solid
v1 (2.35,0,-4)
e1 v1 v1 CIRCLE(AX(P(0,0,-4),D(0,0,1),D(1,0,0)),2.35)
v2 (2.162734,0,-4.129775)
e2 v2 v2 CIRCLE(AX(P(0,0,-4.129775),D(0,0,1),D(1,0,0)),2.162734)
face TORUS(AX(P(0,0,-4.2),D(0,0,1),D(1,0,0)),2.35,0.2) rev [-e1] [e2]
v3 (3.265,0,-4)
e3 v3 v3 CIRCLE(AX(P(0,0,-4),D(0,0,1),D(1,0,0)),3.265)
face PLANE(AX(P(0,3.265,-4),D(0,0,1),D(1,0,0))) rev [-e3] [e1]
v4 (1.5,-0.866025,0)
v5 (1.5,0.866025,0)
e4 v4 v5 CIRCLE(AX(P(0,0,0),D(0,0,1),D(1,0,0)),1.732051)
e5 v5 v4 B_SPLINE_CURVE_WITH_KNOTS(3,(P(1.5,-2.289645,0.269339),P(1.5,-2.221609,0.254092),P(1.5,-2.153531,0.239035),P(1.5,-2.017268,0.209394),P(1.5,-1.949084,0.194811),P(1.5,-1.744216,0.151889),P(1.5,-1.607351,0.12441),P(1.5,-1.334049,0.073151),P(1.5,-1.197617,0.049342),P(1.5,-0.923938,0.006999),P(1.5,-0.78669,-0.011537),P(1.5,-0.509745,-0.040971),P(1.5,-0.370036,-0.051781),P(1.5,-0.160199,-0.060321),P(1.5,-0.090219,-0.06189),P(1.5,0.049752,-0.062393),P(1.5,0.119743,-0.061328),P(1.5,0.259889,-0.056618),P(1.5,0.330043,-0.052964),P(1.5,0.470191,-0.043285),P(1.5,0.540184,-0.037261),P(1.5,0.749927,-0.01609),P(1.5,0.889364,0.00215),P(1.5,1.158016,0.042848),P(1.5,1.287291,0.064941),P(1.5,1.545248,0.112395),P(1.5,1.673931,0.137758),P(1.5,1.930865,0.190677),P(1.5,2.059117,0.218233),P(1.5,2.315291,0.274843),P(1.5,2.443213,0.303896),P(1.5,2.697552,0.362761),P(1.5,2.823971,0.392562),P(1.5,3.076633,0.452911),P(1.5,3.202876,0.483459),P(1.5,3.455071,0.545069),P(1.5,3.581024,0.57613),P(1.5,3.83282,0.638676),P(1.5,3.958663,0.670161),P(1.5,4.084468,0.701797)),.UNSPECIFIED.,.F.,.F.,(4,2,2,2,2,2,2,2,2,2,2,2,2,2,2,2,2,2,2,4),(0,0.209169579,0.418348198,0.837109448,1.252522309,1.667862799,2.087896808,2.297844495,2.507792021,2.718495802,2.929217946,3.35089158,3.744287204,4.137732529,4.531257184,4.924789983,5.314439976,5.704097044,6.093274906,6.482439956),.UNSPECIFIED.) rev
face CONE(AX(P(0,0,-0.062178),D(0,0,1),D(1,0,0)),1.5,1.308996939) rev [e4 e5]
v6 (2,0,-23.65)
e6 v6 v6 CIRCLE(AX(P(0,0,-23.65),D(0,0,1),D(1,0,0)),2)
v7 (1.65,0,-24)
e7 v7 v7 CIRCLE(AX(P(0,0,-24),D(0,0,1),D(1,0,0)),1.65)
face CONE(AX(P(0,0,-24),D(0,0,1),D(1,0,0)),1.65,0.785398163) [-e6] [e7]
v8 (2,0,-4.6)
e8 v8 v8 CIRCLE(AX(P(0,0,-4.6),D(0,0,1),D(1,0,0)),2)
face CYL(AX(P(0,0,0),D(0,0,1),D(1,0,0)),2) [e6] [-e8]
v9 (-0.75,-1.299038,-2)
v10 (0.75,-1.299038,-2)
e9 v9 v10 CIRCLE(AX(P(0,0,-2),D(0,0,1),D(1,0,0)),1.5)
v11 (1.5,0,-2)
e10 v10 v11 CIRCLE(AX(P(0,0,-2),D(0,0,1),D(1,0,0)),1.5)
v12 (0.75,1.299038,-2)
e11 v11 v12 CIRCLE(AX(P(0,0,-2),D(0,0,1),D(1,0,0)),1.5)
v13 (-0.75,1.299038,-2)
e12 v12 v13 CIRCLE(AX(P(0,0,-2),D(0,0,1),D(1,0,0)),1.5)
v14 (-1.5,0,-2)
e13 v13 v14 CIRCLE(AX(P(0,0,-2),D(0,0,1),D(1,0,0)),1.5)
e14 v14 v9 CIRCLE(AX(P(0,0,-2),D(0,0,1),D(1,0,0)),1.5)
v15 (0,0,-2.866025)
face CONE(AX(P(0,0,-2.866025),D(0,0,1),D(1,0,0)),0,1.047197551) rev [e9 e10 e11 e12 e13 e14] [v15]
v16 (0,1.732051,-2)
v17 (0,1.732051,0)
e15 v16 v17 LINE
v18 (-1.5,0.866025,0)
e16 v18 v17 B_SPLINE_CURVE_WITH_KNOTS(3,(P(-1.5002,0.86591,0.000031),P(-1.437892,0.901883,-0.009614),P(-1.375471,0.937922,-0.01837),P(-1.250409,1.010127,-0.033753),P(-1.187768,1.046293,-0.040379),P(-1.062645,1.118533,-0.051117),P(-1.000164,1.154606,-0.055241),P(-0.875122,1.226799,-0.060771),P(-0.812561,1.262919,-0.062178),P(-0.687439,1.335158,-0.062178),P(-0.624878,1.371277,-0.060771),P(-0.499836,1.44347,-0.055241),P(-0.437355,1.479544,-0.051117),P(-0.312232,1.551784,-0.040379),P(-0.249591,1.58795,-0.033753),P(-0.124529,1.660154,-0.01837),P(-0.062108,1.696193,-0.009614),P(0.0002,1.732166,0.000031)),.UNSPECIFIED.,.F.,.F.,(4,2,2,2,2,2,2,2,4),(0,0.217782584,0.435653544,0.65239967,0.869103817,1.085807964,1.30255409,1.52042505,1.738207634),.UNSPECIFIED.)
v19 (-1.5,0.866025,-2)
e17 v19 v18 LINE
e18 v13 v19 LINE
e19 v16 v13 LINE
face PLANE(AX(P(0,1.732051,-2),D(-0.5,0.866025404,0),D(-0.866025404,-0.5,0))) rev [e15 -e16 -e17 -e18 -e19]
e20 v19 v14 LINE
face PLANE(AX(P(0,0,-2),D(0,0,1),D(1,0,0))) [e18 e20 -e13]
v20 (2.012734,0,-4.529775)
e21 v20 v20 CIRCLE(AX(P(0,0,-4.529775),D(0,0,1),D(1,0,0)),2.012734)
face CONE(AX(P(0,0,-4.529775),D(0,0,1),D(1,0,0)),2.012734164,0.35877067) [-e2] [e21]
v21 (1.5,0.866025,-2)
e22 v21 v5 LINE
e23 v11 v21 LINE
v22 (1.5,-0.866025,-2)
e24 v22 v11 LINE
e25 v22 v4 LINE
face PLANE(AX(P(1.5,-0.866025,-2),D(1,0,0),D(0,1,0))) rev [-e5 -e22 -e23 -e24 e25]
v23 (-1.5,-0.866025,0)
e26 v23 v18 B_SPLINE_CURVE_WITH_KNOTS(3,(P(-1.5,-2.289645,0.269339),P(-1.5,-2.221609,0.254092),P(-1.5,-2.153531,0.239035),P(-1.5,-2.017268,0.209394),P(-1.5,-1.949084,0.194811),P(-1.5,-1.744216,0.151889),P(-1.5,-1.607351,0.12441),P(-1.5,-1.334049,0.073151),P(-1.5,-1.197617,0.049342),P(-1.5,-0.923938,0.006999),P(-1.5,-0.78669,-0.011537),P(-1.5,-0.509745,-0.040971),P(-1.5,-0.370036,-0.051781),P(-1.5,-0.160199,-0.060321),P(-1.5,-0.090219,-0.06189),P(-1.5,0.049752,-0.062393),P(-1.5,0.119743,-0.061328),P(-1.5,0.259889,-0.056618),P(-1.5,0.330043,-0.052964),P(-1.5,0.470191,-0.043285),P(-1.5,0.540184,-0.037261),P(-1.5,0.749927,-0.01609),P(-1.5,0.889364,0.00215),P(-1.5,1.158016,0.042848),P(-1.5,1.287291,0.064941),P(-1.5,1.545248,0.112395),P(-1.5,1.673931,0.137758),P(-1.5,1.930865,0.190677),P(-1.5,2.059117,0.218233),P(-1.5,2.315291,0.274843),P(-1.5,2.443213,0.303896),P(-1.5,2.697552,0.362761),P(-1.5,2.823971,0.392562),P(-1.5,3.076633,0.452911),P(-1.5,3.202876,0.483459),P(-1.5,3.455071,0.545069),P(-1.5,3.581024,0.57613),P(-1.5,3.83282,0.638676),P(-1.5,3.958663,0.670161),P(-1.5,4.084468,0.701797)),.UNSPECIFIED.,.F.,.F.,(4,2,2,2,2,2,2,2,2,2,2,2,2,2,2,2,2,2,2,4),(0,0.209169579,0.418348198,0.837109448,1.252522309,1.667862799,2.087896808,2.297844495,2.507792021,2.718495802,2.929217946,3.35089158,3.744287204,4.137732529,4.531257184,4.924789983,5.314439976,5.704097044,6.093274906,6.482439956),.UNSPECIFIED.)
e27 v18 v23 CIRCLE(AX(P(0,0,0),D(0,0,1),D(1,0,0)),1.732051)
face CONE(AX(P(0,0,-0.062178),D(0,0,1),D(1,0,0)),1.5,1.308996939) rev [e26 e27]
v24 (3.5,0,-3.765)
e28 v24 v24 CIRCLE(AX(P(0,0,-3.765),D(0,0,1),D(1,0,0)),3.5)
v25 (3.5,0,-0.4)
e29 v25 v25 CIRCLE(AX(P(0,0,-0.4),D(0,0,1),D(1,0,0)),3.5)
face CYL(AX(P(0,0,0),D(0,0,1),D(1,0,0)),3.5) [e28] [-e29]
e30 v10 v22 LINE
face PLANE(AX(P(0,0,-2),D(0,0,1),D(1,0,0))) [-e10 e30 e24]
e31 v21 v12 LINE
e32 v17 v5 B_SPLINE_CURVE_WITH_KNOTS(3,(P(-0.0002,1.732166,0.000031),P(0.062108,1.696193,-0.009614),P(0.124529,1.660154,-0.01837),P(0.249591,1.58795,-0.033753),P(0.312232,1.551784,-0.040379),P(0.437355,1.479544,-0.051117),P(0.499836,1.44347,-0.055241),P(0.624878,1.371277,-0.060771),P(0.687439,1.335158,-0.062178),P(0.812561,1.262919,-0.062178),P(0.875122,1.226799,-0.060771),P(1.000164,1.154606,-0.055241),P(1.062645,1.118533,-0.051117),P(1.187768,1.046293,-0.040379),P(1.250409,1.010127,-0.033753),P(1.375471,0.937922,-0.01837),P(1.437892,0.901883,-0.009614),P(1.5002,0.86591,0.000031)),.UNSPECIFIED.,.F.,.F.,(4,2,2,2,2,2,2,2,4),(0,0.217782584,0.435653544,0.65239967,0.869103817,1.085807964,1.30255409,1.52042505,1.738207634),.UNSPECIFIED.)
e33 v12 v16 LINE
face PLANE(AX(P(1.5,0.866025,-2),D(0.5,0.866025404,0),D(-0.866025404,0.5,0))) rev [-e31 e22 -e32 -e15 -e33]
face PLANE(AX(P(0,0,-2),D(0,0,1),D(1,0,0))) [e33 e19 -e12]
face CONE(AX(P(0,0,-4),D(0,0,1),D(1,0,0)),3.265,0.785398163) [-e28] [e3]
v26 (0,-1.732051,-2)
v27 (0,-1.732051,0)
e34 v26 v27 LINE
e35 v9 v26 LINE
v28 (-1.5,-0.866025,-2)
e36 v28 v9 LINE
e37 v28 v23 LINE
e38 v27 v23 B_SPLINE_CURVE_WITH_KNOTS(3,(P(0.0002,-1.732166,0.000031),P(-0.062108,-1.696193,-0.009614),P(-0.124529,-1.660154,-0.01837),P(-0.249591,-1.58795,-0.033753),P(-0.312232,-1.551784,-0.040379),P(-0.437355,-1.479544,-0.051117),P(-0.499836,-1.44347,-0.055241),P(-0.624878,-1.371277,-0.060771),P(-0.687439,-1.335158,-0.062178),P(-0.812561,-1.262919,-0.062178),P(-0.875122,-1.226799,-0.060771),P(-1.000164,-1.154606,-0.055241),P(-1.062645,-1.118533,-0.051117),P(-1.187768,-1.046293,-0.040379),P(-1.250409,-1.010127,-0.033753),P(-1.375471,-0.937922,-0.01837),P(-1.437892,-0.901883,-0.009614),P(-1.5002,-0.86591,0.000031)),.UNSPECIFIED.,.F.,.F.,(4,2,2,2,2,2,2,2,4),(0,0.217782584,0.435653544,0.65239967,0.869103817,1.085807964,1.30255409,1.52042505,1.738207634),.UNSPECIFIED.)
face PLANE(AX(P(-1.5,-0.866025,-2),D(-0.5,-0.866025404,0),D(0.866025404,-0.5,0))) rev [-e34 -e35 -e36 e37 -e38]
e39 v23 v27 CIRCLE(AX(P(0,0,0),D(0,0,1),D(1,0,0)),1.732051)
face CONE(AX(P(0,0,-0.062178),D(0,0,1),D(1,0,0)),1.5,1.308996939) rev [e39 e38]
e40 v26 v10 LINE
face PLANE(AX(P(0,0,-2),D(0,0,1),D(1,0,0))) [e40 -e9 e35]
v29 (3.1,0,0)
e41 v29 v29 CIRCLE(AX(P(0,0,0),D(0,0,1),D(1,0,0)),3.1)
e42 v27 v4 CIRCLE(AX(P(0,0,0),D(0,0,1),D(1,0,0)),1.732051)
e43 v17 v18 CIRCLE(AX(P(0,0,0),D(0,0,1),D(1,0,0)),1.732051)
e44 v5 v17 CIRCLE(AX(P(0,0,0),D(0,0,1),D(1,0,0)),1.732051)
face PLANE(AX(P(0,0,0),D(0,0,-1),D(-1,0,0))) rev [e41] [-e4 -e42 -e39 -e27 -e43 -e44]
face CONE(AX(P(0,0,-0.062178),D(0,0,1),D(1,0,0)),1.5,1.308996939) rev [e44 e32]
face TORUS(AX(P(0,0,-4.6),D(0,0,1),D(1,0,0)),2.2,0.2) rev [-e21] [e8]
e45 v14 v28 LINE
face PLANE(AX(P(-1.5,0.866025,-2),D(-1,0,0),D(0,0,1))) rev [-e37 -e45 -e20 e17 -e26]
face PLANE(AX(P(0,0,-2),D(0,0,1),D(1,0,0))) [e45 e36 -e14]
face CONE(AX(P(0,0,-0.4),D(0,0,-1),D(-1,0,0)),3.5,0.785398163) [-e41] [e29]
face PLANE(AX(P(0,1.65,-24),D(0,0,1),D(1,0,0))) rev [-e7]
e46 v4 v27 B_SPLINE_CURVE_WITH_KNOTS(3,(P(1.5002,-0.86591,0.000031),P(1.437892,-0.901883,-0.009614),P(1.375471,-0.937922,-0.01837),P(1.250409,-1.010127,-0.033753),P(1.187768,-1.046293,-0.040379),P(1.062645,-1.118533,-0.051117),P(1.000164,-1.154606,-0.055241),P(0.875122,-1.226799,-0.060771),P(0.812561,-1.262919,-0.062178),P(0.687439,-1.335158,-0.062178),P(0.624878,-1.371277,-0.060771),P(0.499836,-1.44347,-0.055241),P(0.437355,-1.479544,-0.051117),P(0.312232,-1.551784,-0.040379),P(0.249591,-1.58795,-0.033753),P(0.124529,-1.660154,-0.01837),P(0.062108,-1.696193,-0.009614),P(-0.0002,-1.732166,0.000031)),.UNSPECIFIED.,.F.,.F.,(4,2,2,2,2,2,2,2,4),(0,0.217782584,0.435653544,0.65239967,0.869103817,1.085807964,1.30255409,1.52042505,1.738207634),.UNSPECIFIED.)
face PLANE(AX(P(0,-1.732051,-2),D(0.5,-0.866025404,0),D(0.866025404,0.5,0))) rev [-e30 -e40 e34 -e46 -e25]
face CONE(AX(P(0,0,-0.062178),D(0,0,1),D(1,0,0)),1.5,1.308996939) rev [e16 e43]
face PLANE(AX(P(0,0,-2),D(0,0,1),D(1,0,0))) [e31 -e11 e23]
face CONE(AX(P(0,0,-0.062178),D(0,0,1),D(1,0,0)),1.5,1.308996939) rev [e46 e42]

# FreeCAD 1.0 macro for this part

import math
import FreeCAD as App
import Part
import Sketcher
Q = App.Units.Quantity


def add_polygon(sketch, points):
    """Adds a closed chain of lines whose ends are joined by coincident constraints."""
    first, n = sketch.GeometryCount, len(points)
    for a, b in zip(points, points[1:] + points[:1]):
        sketch.addGeometry(Part.LineSegment(App.Vector(*a, 0), App.Vector(*b, 0)), False)
    for i in range(n):
        sketch.addConstraint(Sketcher.Constraint("Coincident", first + i, 2, first + (i + 1) % n, 1))

doc = App.newDocument("Part")
params = doc.addObject("Spreadsheet::Sheet", "Params")
for row, (alias, value) in enumerate([
    ("sketch1_radius", "0.2 mm"),
    ("sketch1_height", "24 mm"),
    ("sketch1_width", "3.1 mm"),
    ("sketch1_width2", "1.65 mm"),
    ("sketch1_height2", "19.05 mm"),
    ("revolution_angle", "360 deg"),
    ("pocket1_length", "2 mm"),
    ("sketch3_width", "1.5 mm"),
    ("groove_angle", "360 deg"),
    ("groove2_angle", "360 deg"),
], start=1):
    params.set(f"A{row}", alias)
    params.set(f"B{row}", "=" + value)
    params.setAlias(f"B{row}", alias)

body = doc.addObject("PartDesign::Body", "Body")

sketch1 = body.newObject("Sketcher::SketchObject", "Sketch")
sketch1.AttachmentSupport = (doc.getObject("YZ_Plane"), [""])
sketch1.MapMode = "FlatFace"
sketch1.addGeometry([
    Part.LineSegment(App.Vector(3.1, 0, 0), App.Vector(0, 0, 0)),
    Part.LineSegment(App.Vector(0, 0, 0), App.Vector(0, -24, 0)),
    Part.LineSegment(App.Vector(0, -24, 0), App.Vector(1.65, -24, 0)),
    Part.LineSegment(App.Vector(1.65, -24, 0), App.Vector(2, -23.65, 0)),
    Part.LineSegment(App.Vector(2, -23.65, 0), App.Vector(2, -4.6, 0)),
    Part.ArcOfCircle(Part.Circle(App.Vector(2.2, -4.6, 0), App.Vector(0, 0, 1), 0.2), math.radians(159), math.radians(180)),
    Part.LineSegment(App.Vector(2.01, -4.53, 0), App.Vector(2.16, -4.13, 0)),
    Part.ArcOfCircle(Part.Circle(App.Vector(2.35, -4.2, 0), App.Vector(0, 0, 1), 0.2), math.radians(90), math.radians(159)),
    Part.LineSegment(App.Vector(2.35, -4, 0), App.Vector(3.27, -4, 0)),
    Part.LineSegment(App.Vector(3.27, -4, 0), App.Vector(3.5, -3.77, 0)),
    Part.LineSegment(App.Vector(3.5, -3.77, 0), App.Vector(3.5, -0.4, 0)),
    Part.LineSegment(App.Vector(3.5, -0.4, 0), App.Vector(3.1, 0, 0)),
], False)
sketch1.addConstraint([
    Sketcher.Constraint("Coincident", 0, 2, 1, 1),
    Sketcher.Constraint("Coincident", 1, 2, 2, 1),
    Sketcher.Constraint("Coincident", 2, 2, 3, 1),
    Sketcher.Constraint("Coincident", 3, 2, 4, 1),
    Sketcher.Constraint("Tangent", 4, 2, 5, 2),
    Sketcher.Constraint("Tangent", 5, 1, 6, 1),
    Sketcher.Constraint("Tangent", 6, 2, 7, 2),
    Sketcher.Constraint("Tangent", 7, 1, 8, 1),
    Sketcher.Constraint("Coincident", 8, 2, 9, 1),
    Sketcher.Constraint("Coincident", 9, 2, 10, 1),
    Sketcher.Constraint("Coincident", 10, 2, 11, 1),
    Sketcher.Constraint("Coincident", 11, 2, 0, 1),
    Sketcher.Constraint("Horizontal", 0),
    Sketcher.Constraint("Vertical", 1),
    Sketcher.Constraint("Horizontal", 2),
    Sketcher.Constraint("Vertical", 4),
    Sketcher.Constraint("Horizontal", 8),
    Sketcher.Constraint("Vertical", 10),
    Sketcher.Constraint("Coincident", 0, 2, -1, 1),
    Sketcher.Constraint("Equal", 5, 7),
    Sketcher.Constraint("Parallel", 3, 9),
    Sketcher.Constraint("Perpendicular", 9, 11),
    Sketcher.Constraint("Radius", 5, Q("0.2 mm")),
    Sketcher.Constraint("DistanceY", 1, 2, 1, 1, Q("24 mm")),
    Sketcher.Constraint("Angle", 3, Q("45 deg")),
    Sketcher.Constraint("DistanceX", 0, 2, 0, 1, Q("3.1 mm")),
    Sketcher.Constraint("DistanceX", -1, 1, 3, 2, Q("2 mm")),
    Sketcher.Constraint("DistanceY", 7, 1, -1, 1, Q("4 mm")),
    Sketcher.Constraint("DistanceX", 2, 1, 2, 2, Q("1.65 mm")),
    Sketcher.Constraint("DistanceY", 4, 1, 4, 2, Q("19.05 mm")),
    Sketcher.Constraint("DistanceX", -1, 1, 9, 2, Q("3.5 mm")),
    Sketcher.Constraint("DistanceX", 2, 2, 7, 3, Q("0.7 mm")),
    Sketcher.Constraint("DistanceX", 8, 1, 8, 2, Q("0.915 mm")),
])
sketch1.setExpression("Constraints[22]", "Params.sketch1_radius")
sketch1.setExpression("Constraints[23]", "Params.sketch1_height")
sketch1.setExpression("Constraints[25]", "Params.sketch1_width")
sketch1.setExpression("Constraints[28]", "Params.sketch1_width2")
sketch1.setExpression("Constraints[29]", "Params.sketch1_height2")
revolution = body.newObject("PartDesign::Revolution", "Revolution")
revolution.Profile = sketch1
revolution.ReferenceAxis = (sketch1, ["V_Axis"])
revolution.setExpression("Angle", "Params.revolution_angle")

sketch2 = body.newObject("Sketcher::SketchObject", "Sketch001")
sketch2.AttachmentSupport = (doc.getObject("XY_Plane"), [""])
sketch2.MapMode = "FlatFace"
add_polygon(sketch2, [(0, 1.7), (-1.5, 0.9), (-1.5, -0.9), (0, -1.7), (1.5, -0.9), (1.5, 0.9)])
sketch2.addConstraint([
    Sketcher.Constraint("Vertical", 1),
    Sketcher.Constraint("Vertical", 4),
    Sketcher.Constraint("Symmetric", 0, 2, 3, 2, -1, 1),
    Sketcher.Constraint("Symmetric", 2, 2, 5, 2, -1, 1),
    Sketcher.Constraint("PointOnObject", 2, 2, -2),
    Sketcher.Constraint("Parallel", 2, 5),
    Sketcher.Constraint("Horizontal", 1, 2, 3, 2),
    Sketcher.Constraint("Angle", 0, Q("-150 deg")),
    Sketcher.Constraint("DistanceX", 1, 2, 3, 2, Q("3 mm")),
    Sketcher.Constraint("DistanceY", 1, 2, 1, 1, Q("1.732051 mm")),
])
pocket1 = body.newObject("PartDesign::Pocket", "Pocket")
pocket1.Profile = sketch2
pocket1.setExpression("Length", "Params.pocket1_length")

sketch3 = body.newObject("Sketcher::SketchObject", "Sketch002")
sketch3.AttachmentSupport = (doc.getObject("YZ_Plane"), [""])
sketch3.MapMode = "FlatFace"
add_polygon(sketch3, [(1.5, -2), (0, -2), (0, -2.9)])
sketch3.addConstraint([
    Sketcher.Constraint("Horizontal", 0),
    Sketcher.Constraint("Vertical", 1),
    Sketcher.Constraint("PointOnObject", 0, 2, -2),
    Sketcher.Constraint("Angle", 2, Q("30 deg")),
    Sketcher.Constraint("DistanceX", 0, 2, 0, 1, Q("1.5 mm")),
    Sketcher.Constraint("DistanceY", 0, 2, -1, 1, Q("2 mm")),
])
sketch3.setExpression("Constraints[7]", "Params.sketch3_width")
groove = body.newObject("PartDesign::Groove", "Groove")
groove.Profile = sketch3
groove.ReferenceAxis = (sketch3, ["V_Axis"])
groove.setExpression("Angle", "Params.groove_angle")

sketch4 = body.newObject("Sketcher::SketchObject", "Sketch003")
sketch4.AttachmentSupport = (doc.getObject("YZ_Plane"), [""])
sketch4.MapMode = "FlatFace"
add_polygon(sketch4, [(1.73, 0), (1.5, 0), (1.5, -0.06)])
sketch4.addConstraint([
    Sketcher.Constraint("Horizontal", 0),
    Sketcher.Constraint("Vertical", 1),
    Sketcher.Constraint("PointOnObject", 0, 2, -1),
    Sketcher.Constraint("Angle", 2, Q("15 deg")),
    Sketcher.Constraint("DistanceX", -1, 1, 0, 2, Q("1.5 mm")),
    Sketcher.Constraint("DistanceX", 0, 2, 0, 1, Q("0.232051 mm")),
])
groove2 = body.newObject("PartDesign::Groove", "Groove001")
groove2.Profile = sketch4
groove2.ReferenceAxis = (sketch4, ["V_Axis"])
groove2.setExpression("Angle", "Params.groove2_angle")

doc.recompute()
